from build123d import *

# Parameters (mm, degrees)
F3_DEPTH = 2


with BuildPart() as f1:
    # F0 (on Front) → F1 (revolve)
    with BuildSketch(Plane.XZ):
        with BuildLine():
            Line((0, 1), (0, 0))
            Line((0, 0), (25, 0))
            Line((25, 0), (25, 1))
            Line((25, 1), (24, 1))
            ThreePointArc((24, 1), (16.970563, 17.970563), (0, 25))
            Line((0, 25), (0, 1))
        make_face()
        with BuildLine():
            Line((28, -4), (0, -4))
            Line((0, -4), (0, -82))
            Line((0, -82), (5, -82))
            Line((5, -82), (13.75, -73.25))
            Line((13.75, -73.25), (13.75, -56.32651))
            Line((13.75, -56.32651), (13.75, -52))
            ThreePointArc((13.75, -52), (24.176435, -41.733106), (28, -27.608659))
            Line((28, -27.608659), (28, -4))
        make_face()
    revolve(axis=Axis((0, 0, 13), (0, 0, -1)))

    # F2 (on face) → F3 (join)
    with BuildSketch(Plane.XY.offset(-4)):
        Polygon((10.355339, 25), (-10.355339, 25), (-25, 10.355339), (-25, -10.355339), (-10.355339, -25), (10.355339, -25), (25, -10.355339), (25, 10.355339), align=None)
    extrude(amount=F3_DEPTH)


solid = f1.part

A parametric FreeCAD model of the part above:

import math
import FreeCAD as App
import Part
import Sketcher

V = App.Vector
Q = App.Units.Quantity

doc = App.newDocument("Part")
body = doc.addObject("PartDesign::Body", "Body")
body.AllowCompound = True

sketch1 = doc.addObject("Sketcher::SketchObject", "Sketch")
body.addObject(sketch1)
sketch1.AttachmentSupport = (doc.XZ_Plane, [""])
sketch1.MapMode = "FlatFace"
sketch1.addGeometry([
    Part.LineSegment(V(0, 0, 0), V(25, 0, 0)),
    Part.LineSegment(V(25, 0, 0), V(25, 1, 0)),
    Part.LineSegment(V(25, 1, 0), V(24, 1, 0)),
    Part.ArcOfCircle(Part.Circle(V(0.000001, 1.000001, 0), V(0, 0, 1), 23.999999), math.radians(-0.000002), math.radians(90.000002)),
    Part.LineSegment(V(0, 25, 0), V(0, 0, 0)),
    Part.LineSegment(V(28, -4, 0), V(0, -4, 0)),
    Part.LineSegment(V(0, -4, 0), V(0, -82, 0)),
    Part.LineSegment(V(0, -82, 0), V(5, -82, 0)),
    Part.LineSegment(V(5, -82, 0), V(13.75, -73.25, 0)),
    Part.LineSegment(V(13.75, -73.25, 0), V(13.75, -52, 0)),
    Part.ArcOfCircle(Part.Circle(V(0, -27.60866, 0), V(0, 0, 1), 28), math.radians(-60.588973), math.radians(0.000001)),
    Part.LineSegment(V(28, -27.608659, 0), V(28, -4, 0)),
], False)
sketch1.addConstraint([
    Sketcher.Constraint("Coincident", 0, 2, 1, 1),
    Sketcher.Constraint("Coincident", 1, 2, 2, 1),
    Sketcher.Constraint("Coincident", 2, 2, 3, 1),
    Sketcher.Constraint("Coincident", 3, 2, 4, 1),
    Sketcher.Constraint("Coincident", 4, 2, 0, 1),
    Sketcher.Constraint("Coincident", 5, 2, 6, 1),
    Sketcher.Constraint("Coincident", 6, 2, 7, 1),
    Sketcher.Constraint("Coincident", 7, 2, 8, 1),
    Sketcher.Constraint("Coincident", 8, 2, 9, 1),
    Sketcher.Constraint("Coincident", 9, 2, 10, 1),
    Sketcher.Constraint("Tangent", 10, 2, 11, 1),
    Sketcher.Constraint("Coincident", 11, 2, 5, 1),
    Sketcher.Constraint("Horizontal", 0),
    Sketcher.Constraint("Vertical", 1),
    Sketcher.Constraint("Horizontal", 2),
    Sketcher.Constraint("Vertical", 4),
    Sketcher.Constraint("Horizontal", 5),
    Sketcher.Constraint("Vertical", 6),
    Sketcher.Constraint("Horizontal", 7),
    Sketcher.Constraint("Vertical", 9),
    Sketcher.Constraint("Vertical", 11),
    Sketcher.Constraint("Coincident", 4, 2, -1, 1),
    Sketcher.Constraint("PointOnObject", 3, 3, -2),
    Sketcher.Constraint("PointOnObject", 10, 3, -2),
    Sketcher.Constraint("PointOnObject", 5, 2, -2),
    Sketcher.Constraint("Horizontal", 3, 3, 1, 2),
    Sketcher.Constraint("Equal", 2, 1),
    Sketcher.Constraint("Radius", 3, Q("23.999999 mm")),
    Sketcher.Constraint("Radius", 10, Q("28 mm")),
    Sketcher.Constraint("DistanceX", 0, 1, 0, 2, Q("25 mm")),
    Sketcher.Constraint("DistanceX", 7, 1, 7, 2, Q("5 mm")),
    Sketcher.Constraint("DistanceY", 6, 2, 6, 1, Q("78 mm")),
    Sketcher.Constraint("Angle", 8, Q("45 deg")),
    Sketcher.Constraint("DistanceY", 5, 2, -1, 1, Q("4 mm")),
    Sketcher.Constraint("DistanceY", 9, 2, -1, 1, Q("52 mm")),
    Sketcher.Constraint("DistanceY", 9, 1, 9, 2, Q("21.25 mm")),
])
revolution = doc.addObject("PartDesign::Revolution", "Revolution")
body.addObject(revolution)
revolution.Profile = sketch1
revolution.ReferenceAxis = (sketch1, ["V_Axis"])
revolution.Angle = 360

sketch2 = doc.addObject("Sketcher::SketchObject", "Sketch001")
body.addObject(sketch2)
sketch2.AttachmentSupport = (doc.XY_Plane, [""])
sketch2.MapMode = "FlatFace"
sketch2.AttachmentOffset = App.Placement(V(0, 0, -4), App.Rotation())
sketch2.addGeometry([
    Part.LineSegment(V(10.355339, 25, 0), V(-10.355339, 25, 0)),
    Part.LineSegment(V(-10.355339, 25, 0), V(-25, 10.355339, 0)),
    Part.LineSegment(V(-25, 10.355339, 0), V(-25, -10.355339, 0)),
    Part.LineSegment(V(-25, -10.355339, 0), V(-10.355339, -25, 0)),
    Part.LineSegment(V(-10.355339, -25, 0), V(10.355339, -25, 0)),
    Part.LineSegment(V(10.355339, -25, 0), V(25, -10.355339, 0)),
    Part.LineSegment(V(25, -10.355339, 0), V(25, 10.355339, 0)),
    Part.LineSegment(V(25, 10.355339, 0), V(10.355339, 25, 0)),
], False)
sketch2.addConstraint([
    Sketcher.Constraint("Coincident", 0, 2, 1, 1),
    Sketcher.Constraint("Coincident", 1, 2, 2, 1),
    Sketcher.Constraint("Coincident", 2, 2, 3, 1),
    Sketcher.Constraint("Coincident", 3, 2, 4, 1),
    Sketcher.Constraint("Coincident", 4, 2, 5, 1),
    Sketcher.Constraint("Coincident", 5, 2, 6, 1),
    Sketcher.Constraint("Coincident", 6, 2, 7, 1),
    Sketcher.Constraint("Coincident", 7, 2, 0, 1),
    Sketcher.Constraint("Horizontal", 0),
    Sketcher.Constraint("Vertical", 2),
    Sketcher.Constraint("Horizontal", 4),
    Sketcher.Constraint("Vertical", 6),
    Sketcher.Constraint("Symmetric", 0, 2, 4, 2, -1, 1),
    Sketcher.Constraint("Symmetric", 1, 2, 5, 2, -1, 1),
    Sketcher.Constraint("Perpendicular", 1, 3),
    Sketcher.Constraint("Perpendicular", 5, 7),
    Sketcher.Constraint("Horizontal", 2, 2, 5, 2),
    Sketcher.Constraint("Horizontal", 1, 2, 6, 2),
    Sketcher.Constraint("Vertical", 0, 2, 3, 2),
    Sketcher.Constraint("Equal", 4, 2),
    Sketcher.Constraint("DistanceY", -1, 1, 0, 2, Q("25 mm")),
    Sketcher.Constraint("DistanceX", 0, 2, 0, 1, Q("20.710678 mm")),
])
pad1 = doc.addObject("PartDesign::Pad", "Pad")
body.addObject(pad1)
pad1.Profile = sketch2
pad1.Length = 2

doc.recompute()
